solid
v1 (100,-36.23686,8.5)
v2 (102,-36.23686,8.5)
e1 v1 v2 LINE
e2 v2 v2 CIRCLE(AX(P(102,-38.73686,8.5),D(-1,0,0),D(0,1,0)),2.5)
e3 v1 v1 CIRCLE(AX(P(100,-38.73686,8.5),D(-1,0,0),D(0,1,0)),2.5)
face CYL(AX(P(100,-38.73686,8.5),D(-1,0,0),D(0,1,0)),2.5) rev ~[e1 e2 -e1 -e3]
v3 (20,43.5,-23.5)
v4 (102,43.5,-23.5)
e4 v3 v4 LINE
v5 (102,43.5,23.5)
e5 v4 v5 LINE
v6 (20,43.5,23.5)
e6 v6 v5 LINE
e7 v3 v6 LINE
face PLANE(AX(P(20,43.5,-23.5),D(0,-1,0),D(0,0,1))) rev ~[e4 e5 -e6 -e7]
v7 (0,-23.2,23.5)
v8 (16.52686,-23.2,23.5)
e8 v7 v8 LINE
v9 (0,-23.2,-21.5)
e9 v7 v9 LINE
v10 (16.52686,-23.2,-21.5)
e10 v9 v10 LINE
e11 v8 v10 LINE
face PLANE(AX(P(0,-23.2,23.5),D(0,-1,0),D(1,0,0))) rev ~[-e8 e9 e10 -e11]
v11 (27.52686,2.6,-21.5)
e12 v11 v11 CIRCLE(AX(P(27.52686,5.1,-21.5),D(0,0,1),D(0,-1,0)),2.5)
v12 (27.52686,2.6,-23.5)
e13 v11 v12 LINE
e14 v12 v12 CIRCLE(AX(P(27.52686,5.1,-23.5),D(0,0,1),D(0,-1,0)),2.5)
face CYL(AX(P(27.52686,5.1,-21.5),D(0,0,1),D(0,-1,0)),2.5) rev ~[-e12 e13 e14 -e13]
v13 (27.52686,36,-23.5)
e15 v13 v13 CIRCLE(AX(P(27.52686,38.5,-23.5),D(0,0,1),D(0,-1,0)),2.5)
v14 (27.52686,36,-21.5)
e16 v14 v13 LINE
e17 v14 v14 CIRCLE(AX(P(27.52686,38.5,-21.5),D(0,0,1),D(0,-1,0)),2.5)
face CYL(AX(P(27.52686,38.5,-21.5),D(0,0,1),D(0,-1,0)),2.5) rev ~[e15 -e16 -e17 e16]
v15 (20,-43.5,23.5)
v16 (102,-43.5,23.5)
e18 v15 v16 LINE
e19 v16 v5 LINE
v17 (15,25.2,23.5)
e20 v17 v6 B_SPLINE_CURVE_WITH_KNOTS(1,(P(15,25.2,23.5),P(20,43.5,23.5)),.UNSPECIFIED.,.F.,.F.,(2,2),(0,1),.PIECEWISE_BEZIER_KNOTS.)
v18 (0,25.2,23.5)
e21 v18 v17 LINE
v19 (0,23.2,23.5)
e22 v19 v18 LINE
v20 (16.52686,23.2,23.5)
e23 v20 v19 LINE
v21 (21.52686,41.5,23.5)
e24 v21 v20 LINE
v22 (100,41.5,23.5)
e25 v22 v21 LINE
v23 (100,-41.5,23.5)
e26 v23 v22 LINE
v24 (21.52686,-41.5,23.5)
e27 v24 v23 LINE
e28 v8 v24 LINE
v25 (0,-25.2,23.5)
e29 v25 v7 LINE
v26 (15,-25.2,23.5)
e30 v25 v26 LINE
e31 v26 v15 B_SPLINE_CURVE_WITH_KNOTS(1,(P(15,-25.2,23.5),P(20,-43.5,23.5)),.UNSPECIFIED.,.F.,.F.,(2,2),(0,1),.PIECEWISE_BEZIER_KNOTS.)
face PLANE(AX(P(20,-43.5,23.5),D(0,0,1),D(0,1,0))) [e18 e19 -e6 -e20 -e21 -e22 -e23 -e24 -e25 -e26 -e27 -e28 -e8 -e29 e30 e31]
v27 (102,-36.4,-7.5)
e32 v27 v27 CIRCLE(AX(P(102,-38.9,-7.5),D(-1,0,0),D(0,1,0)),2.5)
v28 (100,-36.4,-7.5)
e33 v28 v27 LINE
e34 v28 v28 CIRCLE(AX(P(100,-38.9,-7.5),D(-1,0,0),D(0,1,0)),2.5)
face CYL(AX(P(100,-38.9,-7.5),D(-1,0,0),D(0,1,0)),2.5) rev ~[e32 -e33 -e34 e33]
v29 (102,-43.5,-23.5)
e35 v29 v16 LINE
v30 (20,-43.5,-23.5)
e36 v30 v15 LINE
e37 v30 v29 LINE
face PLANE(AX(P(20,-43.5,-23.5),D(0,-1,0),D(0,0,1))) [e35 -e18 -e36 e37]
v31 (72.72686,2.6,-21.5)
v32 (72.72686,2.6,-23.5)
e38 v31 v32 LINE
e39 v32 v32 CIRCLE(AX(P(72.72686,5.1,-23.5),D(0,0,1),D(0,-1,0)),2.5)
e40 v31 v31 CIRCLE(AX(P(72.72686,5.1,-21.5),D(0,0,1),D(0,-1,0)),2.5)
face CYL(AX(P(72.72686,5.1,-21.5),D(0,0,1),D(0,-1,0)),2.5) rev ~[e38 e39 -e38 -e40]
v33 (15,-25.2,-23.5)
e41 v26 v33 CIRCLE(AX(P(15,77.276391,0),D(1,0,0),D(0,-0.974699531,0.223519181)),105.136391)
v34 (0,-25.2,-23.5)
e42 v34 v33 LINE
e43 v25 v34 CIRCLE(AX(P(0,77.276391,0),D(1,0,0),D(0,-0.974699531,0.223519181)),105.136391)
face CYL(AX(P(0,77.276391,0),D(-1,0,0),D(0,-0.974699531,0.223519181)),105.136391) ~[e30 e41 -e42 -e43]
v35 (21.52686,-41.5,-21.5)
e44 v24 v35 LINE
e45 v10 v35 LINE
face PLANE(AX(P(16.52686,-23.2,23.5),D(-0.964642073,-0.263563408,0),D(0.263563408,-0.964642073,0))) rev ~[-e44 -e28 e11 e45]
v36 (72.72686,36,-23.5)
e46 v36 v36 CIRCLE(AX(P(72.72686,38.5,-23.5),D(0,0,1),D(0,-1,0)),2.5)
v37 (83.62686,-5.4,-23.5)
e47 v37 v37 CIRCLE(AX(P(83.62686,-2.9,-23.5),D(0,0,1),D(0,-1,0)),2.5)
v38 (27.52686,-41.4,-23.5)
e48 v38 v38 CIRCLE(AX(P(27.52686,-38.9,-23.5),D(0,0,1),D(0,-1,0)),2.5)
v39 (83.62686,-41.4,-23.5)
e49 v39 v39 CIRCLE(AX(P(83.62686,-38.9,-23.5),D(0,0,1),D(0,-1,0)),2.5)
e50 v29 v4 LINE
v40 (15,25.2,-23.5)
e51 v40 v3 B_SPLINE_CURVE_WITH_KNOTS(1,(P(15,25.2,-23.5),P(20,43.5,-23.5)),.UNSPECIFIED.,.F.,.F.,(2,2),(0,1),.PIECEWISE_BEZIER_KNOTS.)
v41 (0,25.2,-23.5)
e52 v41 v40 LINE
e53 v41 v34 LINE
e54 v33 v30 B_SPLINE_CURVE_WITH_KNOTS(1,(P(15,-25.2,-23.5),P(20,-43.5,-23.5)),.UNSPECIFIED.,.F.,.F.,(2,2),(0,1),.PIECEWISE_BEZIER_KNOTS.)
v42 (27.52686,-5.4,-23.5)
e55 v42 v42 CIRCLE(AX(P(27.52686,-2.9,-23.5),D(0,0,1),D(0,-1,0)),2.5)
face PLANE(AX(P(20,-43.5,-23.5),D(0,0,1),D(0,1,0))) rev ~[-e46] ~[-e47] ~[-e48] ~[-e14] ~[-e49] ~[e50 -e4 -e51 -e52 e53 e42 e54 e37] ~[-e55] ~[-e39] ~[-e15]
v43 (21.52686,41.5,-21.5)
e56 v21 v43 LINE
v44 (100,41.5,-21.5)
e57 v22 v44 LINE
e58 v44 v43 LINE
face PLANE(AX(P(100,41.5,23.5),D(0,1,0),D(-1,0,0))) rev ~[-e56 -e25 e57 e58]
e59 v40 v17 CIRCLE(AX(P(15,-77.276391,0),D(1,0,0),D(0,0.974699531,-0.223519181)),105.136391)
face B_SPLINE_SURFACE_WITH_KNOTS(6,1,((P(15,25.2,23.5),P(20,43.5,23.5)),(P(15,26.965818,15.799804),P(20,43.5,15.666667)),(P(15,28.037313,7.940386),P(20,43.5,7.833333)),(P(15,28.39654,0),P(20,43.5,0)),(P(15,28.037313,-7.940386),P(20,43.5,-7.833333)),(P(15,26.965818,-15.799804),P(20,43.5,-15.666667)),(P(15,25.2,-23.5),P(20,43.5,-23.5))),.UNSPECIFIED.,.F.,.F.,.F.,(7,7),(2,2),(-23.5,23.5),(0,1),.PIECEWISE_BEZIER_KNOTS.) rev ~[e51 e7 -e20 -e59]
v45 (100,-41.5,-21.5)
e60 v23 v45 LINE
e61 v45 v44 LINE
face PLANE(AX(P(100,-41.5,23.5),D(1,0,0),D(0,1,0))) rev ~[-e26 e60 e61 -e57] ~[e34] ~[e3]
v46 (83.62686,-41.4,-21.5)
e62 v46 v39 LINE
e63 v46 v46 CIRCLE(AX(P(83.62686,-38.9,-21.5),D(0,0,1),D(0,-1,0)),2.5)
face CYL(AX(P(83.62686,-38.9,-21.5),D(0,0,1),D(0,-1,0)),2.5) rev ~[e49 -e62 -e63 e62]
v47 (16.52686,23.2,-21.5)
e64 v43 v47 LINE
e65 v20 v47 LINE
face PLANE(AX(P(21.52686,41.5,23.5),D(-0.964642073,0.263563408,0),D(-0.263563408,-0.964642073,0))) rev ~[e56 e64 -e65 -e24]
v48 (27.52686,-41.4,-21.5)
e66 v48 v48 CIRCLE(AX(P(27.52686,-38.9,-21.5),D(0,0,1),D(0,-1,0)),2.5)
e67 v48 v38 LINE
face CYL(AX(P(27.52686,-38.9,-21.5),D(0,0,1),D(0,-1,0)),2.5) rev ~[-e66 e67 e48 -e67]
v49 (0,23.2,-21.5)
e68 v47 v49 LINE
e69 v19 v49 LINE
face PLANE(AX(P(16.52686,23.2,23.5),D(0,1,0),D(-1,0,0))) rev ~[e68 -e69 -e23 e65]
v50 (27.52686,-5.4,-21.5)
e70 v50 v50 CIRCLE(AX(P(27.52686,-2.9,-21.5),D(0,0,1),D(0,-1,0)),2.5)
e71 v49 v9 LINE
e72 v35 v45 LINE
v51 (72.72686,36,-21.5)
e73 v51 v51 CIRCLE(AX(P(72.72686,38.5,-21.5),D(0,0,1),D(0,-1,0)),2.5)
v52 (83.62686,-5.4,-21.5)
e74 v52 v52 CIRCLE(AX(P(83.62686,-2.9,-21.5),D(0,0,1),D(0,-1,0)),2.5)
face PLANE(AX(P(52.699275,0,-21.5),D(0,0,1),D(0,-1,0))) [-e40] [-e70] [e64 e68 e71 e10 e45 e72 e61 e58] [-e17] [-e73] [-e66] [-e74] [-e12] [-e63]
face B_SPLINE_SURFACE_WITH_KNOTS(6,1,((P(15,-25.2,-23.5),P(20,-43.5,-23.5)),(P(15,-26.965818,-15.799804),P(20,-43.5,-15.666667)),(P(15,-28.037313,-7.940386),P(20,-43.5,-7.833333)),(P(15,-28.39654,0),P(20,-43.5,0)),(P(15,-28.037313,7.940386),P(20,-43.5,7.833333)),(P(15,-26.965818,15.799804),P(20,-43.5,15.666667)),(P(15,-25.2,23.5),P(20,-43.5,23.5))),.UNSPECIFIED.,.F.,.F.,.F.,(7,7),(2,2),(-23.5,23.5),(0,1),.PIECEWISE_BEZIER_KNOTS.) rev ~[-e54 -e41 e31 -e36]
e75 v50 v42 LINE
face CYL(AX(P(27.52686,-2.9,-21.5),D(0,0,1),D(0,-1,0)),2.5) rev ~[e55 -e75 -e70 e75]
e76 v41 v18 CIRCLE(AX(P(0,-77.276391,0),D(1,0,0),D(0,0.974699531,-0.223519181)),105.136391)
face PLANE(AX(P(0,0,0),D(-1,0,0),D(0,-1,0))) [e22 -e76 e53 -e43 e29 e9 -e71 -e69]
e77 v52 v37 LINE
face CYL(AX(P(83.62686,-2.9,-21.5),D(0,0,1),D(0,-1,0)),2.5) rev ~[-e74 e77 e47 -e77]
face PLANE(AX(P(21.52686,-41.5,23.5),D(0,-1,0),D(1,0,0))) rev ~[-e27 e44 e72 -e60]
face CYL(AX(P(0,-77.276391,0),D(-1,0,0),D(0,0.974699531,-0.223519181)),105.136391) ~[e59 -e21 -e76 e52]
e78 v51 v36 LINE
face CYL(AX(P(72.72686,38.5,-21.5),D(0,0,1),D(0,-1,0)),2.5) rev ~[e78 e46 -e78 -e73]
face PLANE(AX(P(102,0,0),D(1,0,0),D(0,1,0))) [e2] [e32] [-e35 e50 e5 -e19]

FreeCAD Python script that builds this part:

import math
import FreeCAD as App
import Part
import Sketcher

V = App.Vector
Q = App.Units.Quantity

doc = App.newDocument("Part")
body = doc.addObject("PartDesign::Body", "Body")

sketch1 = body.newObject("Sketcher::SketchObject", "Sketch")
sketch1.AttachmentSupport = (doc.getObject("YZ_Plane"), [""])
sketch1.MapMode = "FlatFace"
sketch1.addGeometry(Part.LineSegment(V(25, 24, 0), V(-25, 24, 0)), False)
sketch1.addGeometry(Part.ArcOfCircle(Part.Circle(V(77, 0, 0), V(0, 0, 1), 105), math.radians(167), math.radians(193)), False)
sketch1.addGeometry(Part.LineSegment(V(-25, -24, 0), V(25, -24, 0)), False)
sketch1.addGeometry(Part.ArcOfCircle(Part.Circle(V(-77, 0, 0), V(0, 0, 1), 105), math.radians(-13), math.radians(13)), False)
sketch1.addConstraint(Sketcher.Constraint("Coincident", 0, 2, 1, 1))
sketch1.addConstraint(Sketcher.Constraint("Coincident", 1, 2, 2, 1))
sketch1.addConstraint(Sketcher.Constraint("Coincident", 2, 2, 3, 1))
sketch1.addConstraint(Sketcher.Constraint("Coincident", 3, 2, 0, 1))
sketch1.addConstraint(Sketcher.Constraint("Horizontal", 0))
sketch1.addConstraint(Sketcher.Constraint("Horizontal", 2))
sketch1.addConstraint(Sketcher.Constraint("Equal", 1, 3))
sketch1.addConstraint(Sketcher.Constraint("Symmetric", 1, 3, 3, 3, -1, 1))
sketch1.addConstraint(Sketcher.Constraint("Symmetric", 0, 2, 1, 2, -1))
sketch1.addConstraint(Sketcher.Constraint("DistanceX", 0, 2, 0, 1, Q("50.4 mm")))
sketch1.addConstraint(Sketcher.Constraint("DistanceY", 1, 2, 0, 2, Q("47 mm")))
sketch1.addConstraint(Sketcher.Constraint("Radius", 1, Q("105.136391 mm")))
pad1 = body.newObject("PartDesign::Pad", "Pad")
pad1.Profile = sketch1
pad1.Length = 15

sketch2 = body.newObject("Sketcher::SketchObject", "Sketch001")
sketch2.AttachmentSupport = (doc.getObject("YZ_Plane"), [""])
sketch2.MapMode = "FlatFace"
sketch2.AttachmentOffset = App.Placement(V(0, 0, 15), App.Rotation())
sketch2.addGeometry(Part.LineSegment(V(25, 24, 0), V(-25, 24, 0)), False)
sketch2.addGeometry(Part.ArcOfCircle(Part.Circle(V(77, 0, 0), V(0, 0, 1), 105), math.radians(167), math.radians(193)), False)
sketch2.addGeometry(Part.LineSegment(V(-25, -24, 0), V(25, -24, 0)), False)
sketch2.addGeometry(Part.ArcOfCircle(Part.Circle(V(-77, 0, 0), V(0, 0, 1), 105), math.radians(-13), math.radians(13)), False)
sketch2.addConstraint(Sketcher.Constraint("Coincident", 0, 2, 1, 1))
sketch2.addConstraint(Sketcher.Constraint("Coincident", 1, 2, 2, 1))
sketch2.addConstraint(Sketcher.Constraint("Coincident", 2, 2, 3, 1))
sketch2.addConstraint(Sketcher.Constraint("Coincident", 3, 2, 0, 1))
sketch2.addConstraint(Sketcher.Constraint("Horizontal", 0))
sketch2.addConstraint(Sketcher.Constraint("Horizontal", 2))
sketch2.addConstraint(Sketcher.Constraint("Equal", 1, 3))
sketch2.addConstraint(Sketcher.Constraint("Symmetric", 1, 3, 3, 3, -1, 1))
sketch2.addConstraint(Sketcher.Constraint("Symmetric", 0, 2, 1, 2, -1))
sketch2.addConstraint(Sketcher.Constraint("DistanceX", 0, 2, 0, 1, Q("50.4 mm")))
sketch2.addConstraint(Sketcher.Constraint("DistanceY", 1, 2, 0, 2, Q("47 mm")))
sketch2.addConstraint(Sketcher.Constraint("Radius", 1, Q("105.136391 mm")))

sketch3 = body.newObject("Sketcher::SketchObject", "Sketch002")
sketch3.AttachmentSupport = (doc.getObject("YZ_Plane"), [""])
sketch3.MapMode = "FlatFace"
sketch3.AttachmentOffset = App.Placement(V(0, 0, 20), App.Rotation())
sketch3.addGeometry(Part.LineSegment(V(-44, 24, 0), V(-44, -24, 0)), False)
sketch3.addGeometry(Part.LineSegment(V(-44, -24, 0), V(44, -24, 0)), False)
sketch3.addGeometry(Part.LineSegment(V(44, -24, 0), V(44, 24, 0)), False)
sketch3.addGeometry(Part.LineSegment(V(44, 24, 0), V(-44, 24, 0)), False)
sketch3.addConstraint(Sketcher.Constraint("Coincident", 0, 2, 1, 1))
sketch3.addConstraint(Sketcher.Constraint("Coincident", 1, 2, 2, 1))
sketch3.addConstraint(Sketcher.Constraint("Coincident", 2, 2, 3, 1))
sketch3.addConstraint(Sketcher.Constraint("Coincident", 3, 2, 0, 1))
sketch3.addConstraint(Sketcher.Constraint("Vertical", 0))
sketch3.addConstraint(Sketcher.Constraint("Horizontal", 1))
sketch3.addConstraint(Sketcher.Constraint("Vertical", 2))
sketch3.addConstraint(Sketcher.Constraint("Horizontal", 3))
sketch3.addConstraint(Sketcher.Constraint("Symmetric", 0, 2, 2, 2, -1, 1))
sketch3.addConstraint(Sketcher.Constraint("DistanceX", 1, 1, 1, 2, Q("87 mm")))
sketch3.addConstraint(Sketcher.Constraint("DistanceY", 0, 2, 0, 1, Q("47 mm")))

additiveloft = body.newObject("PartDesign::AdditiveLoft", "AdditiveLoft")
additiveloft.Profile = sketch2
additiveloft.Sections = [sketch3]

sketch4 = body.newObject("Sketcher::SketchObject", "Sketch003")
sketch4.AttachmentSupport = (doc.getObject("YZ_Plane"), [""])
sketch4.MapMode = "FlatFace"
sketch4.AttachmentOffset = App.Placement(V(0, 0, 20), App.Rotation())
sketch4.addGeometry(Part.LineSegment(V(-44, 24, 0), V(-44, -24, 0)), False)
sketch4.addGeometry(Part.LineSegment(V(-44, -24, 0), V(44, -24, 0)), False)
sketch4.addGeometry(Part.LineSegment(V(44, -24, 0), V(44, 24, 0)), False)
sketch4.addGeometry(Part.LineSegment(V(44, 24, 0), V(-44, 24, 0)), False)
sketch4.addConstraint(Sketcher.Constraint("Coincident", 0, 2, 1, 1))
sketch4.addConstraint(Sketcher.Constraint("Coincident", 1, 2, 2, 1))
sketch4.addConstraint(Sketcher.Constraint("Coincident", 2, 2, 3, 1))
sketch4.addConstraint(Sketcher.Constraint("Coincident", 3, 2, 0, 1))
sketch4.addConstraint(Sketcher.Constraint("Vertical", 0))
sketch4.addConstraint(Sketcher.Constraint("Horizontal", 1))
sketch4.addConstraint(Sketcher.Constraint("Vertical", 2))
sketch4.addConstraint(Sketcher.Constraint("Horizontal", 3))
sketch4.addConstraint(Sketcher.Constraint("Symmetric", 0, 2, 2, 2, -1, 1))
sketch4.addConstraint(Sketcher.Constraint("DistanceX", 1, 1, 1, 2, Q("87 mm")))
sketch4.addConstraint(Sketcher.Constraint("DistanceY", 0, 2, 0, 1, Q("47 mm")))
pad2 = body.newObject("PartDesign::Pad", "Pad001")
pad2.Profile = sketch4
pad2.Length = 82

sketch5 = body.newObject("Sketcher::SketchObject", "Sketch004")
sketch5.AttachmentSupport = (doc.getObject("XY_Plane"), [""])
sketch5.MapMode = "FlatFace"
sketch5.AttachmentOffset = App.Placement(V(0, 0, 23.5), App.Rotation())
sketch5.addGeometry(Part.LineSegment(V(100, 42, 0), V(22, 42, 0)), False)
sketch5.addGeometry(Part.LineSegment(V(22, 42, 0), V(17, 23, 0)), False)
sketch5.addGeometry(Part.LineSegment(V(17, 23, 0), V(0, 23, 0)), False)
sketch5.addGeometry(Part.LineSegment(V(0, 23, 0), V(0, -23, 0)), False)
sketch5.addGeometry(Part.LineSegment(V(0, -23, 0), V(17, -23, 0)), False)
sketch5.addGeometry(Part.LineSegment(V(17, -23, 0), V(22, -42, 0)), False)
sketch5.addGeometry(Part.LineSegment(V(22, -42, 0), V(100, -42, 0)), False)
sketch5.addGeometry(Part.LineSegment(V(100, -42, 0), V(100, 42, 0)), False)
sketch5.addConstraint(Sketcher.Constraint("Coincident", 0, 2, 1, 1))
sketch5.addConstraint(Sketcher.Constraint("Coincident", 1, 2, 2, 1))
sketch5.addConstraint(Sketcher.Constraint("Coincident", 2, 2, 3, 1))
sketch5.addConstraint(Sketcher.Constraint("Coincident", 3, 2, 4, 1))
sketch5.addConstraint(Sketcher.Constraint("Coincident", 4, 2, 5, 1))
sketch5.addConstraint(Sketcher.Constraint("Coincident", 5, 2, 6, 1))
sketch5.addConstraint(Sketcher.Constraint("Coincident", 6, 2, 7, 1))
sketch5.addConstraint(Sketcher.Constraint("Coincident", 7, 2, 0, 1))
sketch5.addConstraint(Sketcher.Constraint("Horizontal", 0))
sketch5.addConstraint(Sketcher.Constraint("Horizontal", 2))
sketch5.addConstraint(Sketcher.Constraint("Vertical", 3))
sketch5.addConstraint(Sketcher.Constraint("Horizontal", 4))
sketch5.addConstraint(Sketcher.Constraint("Horizontal", 6))
sketch5.addConstraint(Sketcher.Constraint("Vertical", 7))
sketch5.addConstraint(Sketcher.Constraint("Symmetric", 2, 2, 3, 2, -1, 1))
sketch5.addConstraint(Sketcher.Constraint("Symmetric", 0, 2, 5, 2, -1))
sketch5.addConstraint(Sketcher.Constraint("Vertical", 1, 2, 4, 2))
sketch5.addConstraint(Sketcher.Constraint("DistanceY", 7, 1, 7, 2, Q("83 mm")))
sketch5.addConstraint(Sketcher.Constraint("DistanceY", 3, 2, 3, 1, Q("46.4 mm")))
sketch5.addConstraint(Sketcher.Constraint("DistanceX", -1, 1, 6, 2, Q("100 mm")))
sketch5.addConstraint(Sketcher.Constraint("DistanceX", 1, 2, 0, 2, Q("5 mm")))
sketch5.addConstraint(Sketcher.Constraint("DistanceX", 0, 2, 0, 1, Q("78.47314 mm")))
pocket1 = body.newObject("PartDesign::Pocket", "Pocket")
pocket1.Profile = sketch5
pocket1.Length = 45

sketch6 = body.newObject("Sketcher::SketchObject", "Sketch005")
sketch6.AttachmentSupport = (doc.getObject("XY_Plane"), [""])
sketch6.MapMode = "FlatFace"
sketch6.AttachmentOffset = App.Placement(V(0, 0, -21.5), App.Rotation())
sketch6.addGeometry(Part.Circle(V(27.5, 38.5, 0), V(0, 0, 1), 2.5), False)
sketch6.addGeometry(Part.Circle(V(27.5, 5.1, 0), V(0, 0, 1), 2.5), False)
sketch6.addGeometry(Part.Circle(V(72.7, 38.5, 0), V(0, 0, 1), 2.5), False)
sketch6.addGeometry(Part.Circle(V(72.7, 5.1, 0), V(0, 0, 1), 2.5), False)
sketch6.addGeometry(Part.Circle(V(27.5, -2.9, 0), V(0, 0, 1), 2.5), False)
sketch6.addGeometry(Part.Circle(V(27.5, -38.9, 0), V(0, 0, 1), 2.5), False)
sketch6.addGeometry(Part.Circle(V(83.6, -2.9, 0), V(0, 0, 1), 2.5), False)
sketch6.addGeometry(Part.Circle(V(83.6, -38.9, 0), V(0, 0, 1), 2.5), False)
sketch6.addConstraint(Sketcher.Constraint("Equal", 0, 1))
sketch6.addConstraint(Sketcher.Constraint("Equal", 1, 2))
sketch6.addConstraint(Sketcher.Constraint("Equal", 2, 3))
sketch6.addConstraint(Sketcher.Constraint("Equal", 3, 4))
sketch6.addConstraint(Sketcher.Constraint("Equal", 4, 5))
sketch6.addConstraint(Sketcher.Constraint("Equal", 5, 6))
sketch6.addConstraint(Sketcher.Constraint("Equal", 6, 7))
sketch6.addConstraint(Sketcher.Constraint("Horizontal", 0, 3, 2, 3))
sketch6.addConstraint(Sketcher.Constraint("Horizontal", 1, 3, 3, 3))
sketch6.addConstraint(Sketcher.Constraint("Horizontal", 4, 3, 6, 3))
sketch6.addConstraint(Sketcher.Constraint("Horizontal", 5, 3, 7, 3))
sketch6.addConstraint(Sketcher.Constraint("Vertical", 0, 3, 1, 3))
sketch6.addConstraint(Sketcher.Constraint("Vertical", 2, 3, 3, 3))
sketch6.addConstraint(Sketcher.Constraint("Vertical", 1, 3, 4, 3))
sketch6.addConstraint(Sketcher.Constraint("Vertical", 4, 3, 5, 3))
sketch6.addConstraint(Sketcher.Constraint("Vertical", 6, 3, 7, 3))
sketch6.addConstraint(Sketcher.Constraint("Diameter", 0, Q("5 mm")))
sketch6.addConstraint(Sketcher.Constraint("DistanceY", 4, 3, 1, 3, Q("8 mm")))
sketch6.addConstraint(Sketcher.Constraint("DistanceY", 5, 3, 4, 3, Q("36 mm")))
sketch6.addConstraint(Sketcher.Constraint("DistanceY", -1, 1, 0, 3, Q("38.5 mm")))
sketch6.addConstraint(Sketcher.Constraint("DistanceY", -1, 1, 1, 3, Q("5.1 mm")))
sketch6.addConstraint(Sketcher.Constraint("DistanceX", 0, 3, 2, 3, Q("45.2 mm")))
sketch6.addConstraint(Sketcher.Constraint("DistanceX", 3, 3, 6, 3, Q("10.9 mm")))
sketch6.addConstraint(Sketcher.Constraint("DistanceX", -1, 1, 0, 3, Q("27.52686 mm")))
pocket2 = body.newObject("PartDesign::Pocket", "Pocket001")
pocket2.Profile = sketch6
pocket2.Length = 5

sketch7 = body.newObject("Sketcher::SketchObject", "Sketch006")
sketch7.AttachmentSupport = (doc.getObject("YZ_Plane"), [""])
sketch7.MapMode = "FlatFace"
sketch7.AttachmentOffset = App.Placement(V(0, 0, 100), App.Rotation())
sketch7.addGeometry(Part.Circle(V(-38.9, -7.5, 0), V(0, 0, 1), 2.5), False)
sketch7.addGeometry(Part.Circle(V(-38.7, 8.5, 0), V(0, 0, 1), 2.5), False)
sketch7.addConstraint(Sketcher.Constraint("Equal", 0, 1))
sketch7.addConstraint(Sketcher.Constraint("Diameter", 0, Q("5 mm")))
sketch7.addConstraint(Sketcher.Constraint("DistanceY", 0, 3, 1, 3, Q("16 mm")))
sketch7.addConstraint(Sketcher.Constraint("DistanceX", 0, 3, -1, 1, Q("38.9 mm")))
sketch7.addConstraint(Sketcher.Constraint("DistanceY", 0, 3, -1, 1, Q("7.5 mm")))
sketch7.addConstraint(Sketcher.Constraint("DistanceX", 1, 3, -1, 1, Q("38.73686 mm")))
pocket3 = body.newObject("PartDesign::Pocket", "Pocket002")
pocket3.Profile = sketch7
pocket3.Length = 5
pocket3.Reversed = True

doc.recompute()
